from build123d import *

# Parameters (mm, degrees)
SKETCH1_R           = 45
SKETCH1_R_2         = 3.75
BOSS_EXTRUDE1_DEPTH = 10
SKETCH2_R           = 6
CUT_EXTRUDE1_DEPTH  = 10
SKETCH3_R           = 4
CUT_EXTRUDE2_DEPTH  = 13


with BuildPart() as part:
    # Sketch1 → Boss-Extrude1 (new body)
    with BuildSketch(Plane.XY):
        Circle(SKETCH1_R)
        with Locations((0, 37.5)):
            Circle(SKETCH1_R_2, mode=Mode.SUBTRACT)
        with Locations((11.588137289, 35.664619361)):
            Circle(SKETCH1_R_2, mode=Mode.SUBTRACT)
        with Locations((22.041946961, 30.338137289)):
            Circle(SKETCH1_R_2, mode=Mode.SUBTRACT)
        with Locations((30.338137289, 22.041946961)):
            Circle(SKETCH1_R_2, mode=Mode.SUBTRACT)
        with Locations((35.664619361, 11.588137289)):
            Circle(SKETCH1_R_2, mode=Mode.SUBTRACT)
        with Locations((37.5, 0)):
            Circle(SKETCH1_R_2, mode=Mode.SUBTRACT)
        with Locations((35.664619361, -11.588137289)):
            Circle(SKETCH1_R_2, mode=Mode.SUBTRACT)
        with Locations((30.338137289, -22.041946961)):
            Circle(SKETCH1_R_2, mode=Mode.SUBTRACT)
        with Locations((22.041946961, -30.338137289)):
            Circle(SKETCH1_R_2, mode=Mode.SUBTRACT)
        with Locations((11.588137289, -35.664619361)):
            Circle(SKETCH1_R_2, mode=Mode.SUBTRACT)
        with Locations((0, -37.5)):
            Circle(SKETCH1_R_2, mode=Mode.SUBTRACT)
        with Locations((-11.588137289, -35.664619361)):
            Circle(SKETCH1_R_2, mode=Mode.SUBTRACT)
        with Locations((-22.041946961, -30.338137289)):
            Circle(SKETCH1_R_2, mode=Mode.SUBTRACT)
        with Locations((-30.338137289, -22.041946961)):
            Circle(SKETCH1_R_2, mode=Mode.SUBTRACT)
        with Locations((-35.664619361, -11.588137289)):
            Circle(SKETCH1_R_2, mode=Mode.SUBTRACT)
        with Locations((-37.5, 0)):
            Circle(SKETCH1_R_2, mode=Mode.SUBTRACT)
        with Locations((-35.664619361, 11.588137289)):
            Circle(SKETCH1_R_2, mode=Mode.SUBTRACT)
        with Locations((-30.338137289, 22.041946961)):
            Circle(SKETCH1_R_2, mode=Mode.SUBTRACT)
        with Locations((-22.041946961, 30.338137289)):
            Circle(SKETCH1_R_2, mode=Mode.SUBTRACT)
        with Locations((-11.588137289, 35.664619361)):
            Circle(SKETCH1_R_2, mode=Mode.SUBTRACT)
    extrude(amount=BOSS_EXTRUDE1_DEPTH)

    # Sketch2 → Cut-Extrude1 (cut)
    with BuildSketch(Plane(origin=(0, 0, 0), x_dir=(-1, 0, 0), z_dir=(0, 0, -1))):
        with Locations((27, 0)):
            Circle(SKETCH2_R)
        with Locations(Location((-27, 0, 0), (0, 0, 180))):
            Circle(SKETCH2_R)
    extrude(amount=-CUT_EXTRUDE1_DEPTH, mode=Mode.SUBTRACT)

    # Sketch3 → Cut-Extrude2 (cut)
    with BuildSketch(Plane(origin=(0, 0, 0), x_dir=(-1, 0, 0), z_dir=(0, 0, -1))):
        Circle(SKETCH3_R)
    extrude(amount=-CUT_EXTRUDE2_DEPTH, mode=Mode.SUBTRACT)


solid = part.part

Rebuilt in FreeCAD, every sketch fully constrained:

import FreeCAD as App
import Part
import Sketcher
from FreeCAD import Vector

doc = App.newDocument("Part")
body = doc.addObject("PartDesign::Body", "Body")

# Sketch on XY plane
sketch1 = doc.addObject("Sketcher::SketchObject", "Sketch")
body.addObject(sketch1)
sketch1.AttachmentSupport = (doc.XY_Plane, [""])
sketch1.MapMode = "FlatFace"
sketch1.addGeometry(Part.Circle(Vector(0, 0, 0), Vector(0, 0, 1), 45), False)
sketch1.addGeometry(Part.Circle(Vector(-22.041947, -30.338137, 0), Vector(0, 0, 1), 3.75), False)
sketch1.addGeometry(Part.Circle(Vector(-30.338137, -22.041947, 0), Vector(0, 0, 1), 3.75), False)
sketch1.addGeometry(Part.Circle(Vector(-11.588137, -35.664619, 0), Vector(0, 0, 1), 3.75), False)
sketch1.addGeometry(Part.Circle(Vector(-35.664619, -11.588137, 0), Vector(0, 0, 1), 3.75), False)
sketch1.addGeometry(Part.Circle(Vector(0, -37.5, 0), Vector(0, 0, 1), 3.75), False)
sketch1.addGeometry(Part.Circle(Vector(11.588137, -35.664619, 0), Vector(0, 0, 1), 3.75), False)
sketch1.addGeometry(Part.Circle(Vector(22.041947, -30.338137, 0), Vector(0, 0, 1), 3.75), False)
sketch1.addGeometry(Part.Circle(Vector(30.338137, -22.041947, 0), Vector(0, 0, 1), 3.75), False)
sketch1.addGeometry(Part.Circle(Vector(35.664619, -11.588137, 0), Vector(0, 0, 1), 3.75), False)
sketch1.addGeometry(Part.Circle(Vector(-37.5, 0, 0), Vector(0, 0, 1), 3.75), False)
sketch1.addGeometry(Part.Circle(Vector(-35.664619, 11.588137, 0), Vector(0, 0, 1), 3.75), False)
sketch1.addGeometry(Part.Circle(Vector(-30.338137, 22.041947, 0), Vector(0, 0, 1), 3.75), False)
sketch1.addGeometry(Part.Circle(Vector(-22.041947, 30.338137, 0), Vector(0, 0, 1), 3.75), False)
sketch1.addGeometry(Part.Circle(Vector(-11.588137, 35.664619, 0), Vector(0, 0, 1), 3.75), False)
sketch1.addGeometry(Part.Circle(Vector(37.5, 0, 0), Vector(0, 0, 1), 3.75), False)
sketch1.addGeometry(Part.Circle(Vector(35.664619, 11.588137, 0), Vector(0, 0, 1), 3.75), False)
sketch1.addGeometry(Part.Circle(Vector(0, 37.5, 0), Vector(0, 0, 1), 3.75), False)
sketch1.addGeometry(Part.Circle(Vector(11.588137, 35.664619, 0), Vector(0, 0, 1), 3.75), False)
sketch1.addGeometry(Part.Circle(Vector(30.338137, 22.041947, 0), Vector(0, 0, 1), 3.75), False)
sketch1.addGeometry(Part.Circle(Vector(22.041947, 30.338137, 0), Vector(0, 0, 1), 3.75), False)
sketch1.addConstraint(Sketcher.Constraint("Coincident", 0, 3, -1, 1))
sketch1.addConstraint(Sketcher.Constraint("Equal", 1, 2))
sketch1.addConstraint(Sketcher.Constraint("Equal", 2, 3))
sketch1.addConstraint(Sketcher.Constraint("Equal", 3, 4))
sketch1.addConstraint(Sketcher.Constraint("Equal", 4, 5))
sketch1.addConstraint(Sketcher.Constraint("Equal", 5, 6))
sketch1.addConstraint(Sketcher.Constraint("Equal", 6, 7))
sketch1.addConstraint(Sketcher.Constraint("Equal", 7, 8))
sketch1.addConstraint(Sketcher.Constraint("Equal", 8, 9))
sketch1.addConstraint(Sketcher.Constraint("Equal", 9, 10))
sketch1.addConstraint(Sketcher.Constraint("Equal", 10, 11))
sketch1.addConstraint(Sketcher.Constraint("Equal", 11, 12))
sketch1.addConstraint(Sketcher.Constraint("Equal", 12, 13))
sketch1.addConstraint(Sketcher.Constraint("Equal", 13, 14))
sketch1.addConstraint(Sketcher.Constraint("Equal", 14, 15))
sketch1.addConstraint(Sketcher.Constraint("Equal", 15, 16))
sketch1.addConstraint(Sketcher.Constraint("Equal", 16, 17))
sketch1.addConstraint(Sketcher.Constraint("Equal", 17, 18))
sketch1.addConstraint(Sketcher.Constraint("Equal", 18, 19))
sketch1.addConstraint(Sketcher.Constraint("Equal", 19, 20))
sketch1.addConstraint(Sketcher.Constraint("Symmetric", 9, 3, 11, 3, -1, 1))
sketch1.addConstraint(Sketcher.Constraint("Symmetric", 8, 3, 12, 3, -1, 1))
sketch1.addConstraint(Sketcher.Constraint("Symmetric", 7, 3, 13, 3, -1, 1))
sketch1.addConstraint(Sketcher.Constraint("Symmetric", 6, 3, 14, 3, -1, 1))
sketch1.addConstraint(Sketcher.Constraint("Symmetric", 10, 3, 15, 3, -1, 1))
sketch1.addConstraint(Sketcher.Constraint("Symmetric", 4, 3, 16, 3, -1, 1))
sketch1.addConstraint(Sketcher.Constraint("Symmetric", 5, 3, 17, 3, -1, 1))
sketch1.addConstraint(Sketcher.Constraint("Symmetric", 3, 3, 18, 3, -1, 1))
sketch1.addConstraint(Sketcher.Constraint("Symmetric", 2, 3, 19, 3, -1, 1))
sketch1.addConstraint(Sketcher.Constraint("Symmetric", 1, 3, 20, 3, -1, 1))
sketch1.addConstraint(Sketcher.Constraint("Symmetric", 3, 3, 6, 3, -2))
sketch1.addConstraint(Sketcher.Constraint("Symmetric", 1, 3, 7, 3, -2))
sketch1.addConstraint(Sketcher.Constraint("Symmetric", 2, 3, 8, 3, -2))
sketch1.addConstraint(Sketcher.Constraint("Symmetric", 4, 3, 9, 3, -2))
sketch1.addConstraint(Sketcher.Constraint("PointOnObject", 5, 3, -2))
sketch1.addConstraint(Sketcher.Constraint("PointOnObject", 10, 3, -1))
sketch1.addConstraint(Sketcher.Constraint("Diameter", 0, 90.0))
sketch1.addConstraint(Sketcher.Constraint("Diameter", 1, 7.5))
sketch1.addConstraint(Sketcher.Constraint("DistanceY", 5, 3, -1, 1, 37.5))
sketch1.addConstraint(Sketcher.Constraint("DistanceX", 10, 3, -1, 1, 37.5))
sketch1.addConstraint(Sketcher.Constraint("DistanceX", 2, 3, 3, 3, 18.75))
sketch1.addConstraint(Sketcher.Constraint("DistanceY", 1, 3, 4, 3, 18.75))
sketch1.addConstraint(Sketcher.Constraint("DistanceY", 3, 3, -1, 1, 35.664619))
sketch1.addConstraint(Sketcher.Constraint("DistanceX", 4, 3, -1, 1, 35.664619))
sketch1.addConstraint(Sketcher.Constraint("DistanceX", 2, 3, 1, 3, 8.29619))
sketch1.addConstraint(Sketcher.Constraint("DistanceY", 1, 3, 2, 3, 8.29619))
sketch1.addConstraint(Sketcher.Constraint("DistanceX", 1, 3, -1, 1, 22.041947))
sketch1.addConstraint(Sketcher.Constraint("DistanceY", 1, 3, -1, 1, 30.338137))
pad1 = doc.addObject("PartDesign::Pad", "Pad")
body.addObject(pad1)
pad1.Profile = sketch1
pad1.Length = 10

# Sketch on XY plane
sketch2 = doc.addObject("Sketcher::SketchObject", "Sketch001")
body.addObject(sketch2)
sketch2.AttachmentSupport = (doc.XY_Plane, [""])
sketch2.MapMode = "FlatFace"
sketch2.addGeometry(Part.Circle(Vector(-27, 0, 0), Vector(0, 0, 1), 6), False)
sketch2.addGeometry(Part.Circle(Vector(27, 0, 0), Vector(0, 0, 1), 6), False)
sketch2.addConstraint(Sketcher.Constraint("Equal", 0, 1))
sketch2.addConstraint(Sketcher.Constraint("Symmetric", 0, 3, 1, 3, -1, 1))
sketch2.addConstraint(Sketcher.Constraint("PointOnObject", 0, 3, -1))
sketch2.addConstraint(Sketcher.Constraint("Diameter", 0, 12.0))
sketch2.addConstraint(Sketcher.Constraint("DistanceX", 0, 3, -1, 1, 27.0))
pocket1 = doc.addObject("PartDesign::Pocket", "Pocket")
body.addObject(pocket1)
pocket1.Profile = sketch2
pocket1.Length = 10
pocket1.Reversed = True

# Sketch on XY plane
sketch3 = doc.addObject("Sketcher::SketchObject", "Sketch002")
body.addObject(sketch3)
sketch3.AttachmentSupport = (doc.XY_Plane, [""])
sketch3.MapMode = "FlatFace"
sketch3.addGeometry(Part.Circle(Vector(0, 0, 0), Vector(0, 0, 1), 4), False)
sketch3.addConstraint(Sketcher.Constraint("Coincident", 0, 3, -1, 1))
sketch3.addConstraint(Sketcher.Constraint("Diameter", 0, 8.0))
pocket2 = doc.addObject("PartDesign::Pocket", "Pocket001")
body.addObject(pocket2)
pocket2.Profile = sketch3
pocket2.Length = 13
pocket2.Reversed = True

doc.recompute()
